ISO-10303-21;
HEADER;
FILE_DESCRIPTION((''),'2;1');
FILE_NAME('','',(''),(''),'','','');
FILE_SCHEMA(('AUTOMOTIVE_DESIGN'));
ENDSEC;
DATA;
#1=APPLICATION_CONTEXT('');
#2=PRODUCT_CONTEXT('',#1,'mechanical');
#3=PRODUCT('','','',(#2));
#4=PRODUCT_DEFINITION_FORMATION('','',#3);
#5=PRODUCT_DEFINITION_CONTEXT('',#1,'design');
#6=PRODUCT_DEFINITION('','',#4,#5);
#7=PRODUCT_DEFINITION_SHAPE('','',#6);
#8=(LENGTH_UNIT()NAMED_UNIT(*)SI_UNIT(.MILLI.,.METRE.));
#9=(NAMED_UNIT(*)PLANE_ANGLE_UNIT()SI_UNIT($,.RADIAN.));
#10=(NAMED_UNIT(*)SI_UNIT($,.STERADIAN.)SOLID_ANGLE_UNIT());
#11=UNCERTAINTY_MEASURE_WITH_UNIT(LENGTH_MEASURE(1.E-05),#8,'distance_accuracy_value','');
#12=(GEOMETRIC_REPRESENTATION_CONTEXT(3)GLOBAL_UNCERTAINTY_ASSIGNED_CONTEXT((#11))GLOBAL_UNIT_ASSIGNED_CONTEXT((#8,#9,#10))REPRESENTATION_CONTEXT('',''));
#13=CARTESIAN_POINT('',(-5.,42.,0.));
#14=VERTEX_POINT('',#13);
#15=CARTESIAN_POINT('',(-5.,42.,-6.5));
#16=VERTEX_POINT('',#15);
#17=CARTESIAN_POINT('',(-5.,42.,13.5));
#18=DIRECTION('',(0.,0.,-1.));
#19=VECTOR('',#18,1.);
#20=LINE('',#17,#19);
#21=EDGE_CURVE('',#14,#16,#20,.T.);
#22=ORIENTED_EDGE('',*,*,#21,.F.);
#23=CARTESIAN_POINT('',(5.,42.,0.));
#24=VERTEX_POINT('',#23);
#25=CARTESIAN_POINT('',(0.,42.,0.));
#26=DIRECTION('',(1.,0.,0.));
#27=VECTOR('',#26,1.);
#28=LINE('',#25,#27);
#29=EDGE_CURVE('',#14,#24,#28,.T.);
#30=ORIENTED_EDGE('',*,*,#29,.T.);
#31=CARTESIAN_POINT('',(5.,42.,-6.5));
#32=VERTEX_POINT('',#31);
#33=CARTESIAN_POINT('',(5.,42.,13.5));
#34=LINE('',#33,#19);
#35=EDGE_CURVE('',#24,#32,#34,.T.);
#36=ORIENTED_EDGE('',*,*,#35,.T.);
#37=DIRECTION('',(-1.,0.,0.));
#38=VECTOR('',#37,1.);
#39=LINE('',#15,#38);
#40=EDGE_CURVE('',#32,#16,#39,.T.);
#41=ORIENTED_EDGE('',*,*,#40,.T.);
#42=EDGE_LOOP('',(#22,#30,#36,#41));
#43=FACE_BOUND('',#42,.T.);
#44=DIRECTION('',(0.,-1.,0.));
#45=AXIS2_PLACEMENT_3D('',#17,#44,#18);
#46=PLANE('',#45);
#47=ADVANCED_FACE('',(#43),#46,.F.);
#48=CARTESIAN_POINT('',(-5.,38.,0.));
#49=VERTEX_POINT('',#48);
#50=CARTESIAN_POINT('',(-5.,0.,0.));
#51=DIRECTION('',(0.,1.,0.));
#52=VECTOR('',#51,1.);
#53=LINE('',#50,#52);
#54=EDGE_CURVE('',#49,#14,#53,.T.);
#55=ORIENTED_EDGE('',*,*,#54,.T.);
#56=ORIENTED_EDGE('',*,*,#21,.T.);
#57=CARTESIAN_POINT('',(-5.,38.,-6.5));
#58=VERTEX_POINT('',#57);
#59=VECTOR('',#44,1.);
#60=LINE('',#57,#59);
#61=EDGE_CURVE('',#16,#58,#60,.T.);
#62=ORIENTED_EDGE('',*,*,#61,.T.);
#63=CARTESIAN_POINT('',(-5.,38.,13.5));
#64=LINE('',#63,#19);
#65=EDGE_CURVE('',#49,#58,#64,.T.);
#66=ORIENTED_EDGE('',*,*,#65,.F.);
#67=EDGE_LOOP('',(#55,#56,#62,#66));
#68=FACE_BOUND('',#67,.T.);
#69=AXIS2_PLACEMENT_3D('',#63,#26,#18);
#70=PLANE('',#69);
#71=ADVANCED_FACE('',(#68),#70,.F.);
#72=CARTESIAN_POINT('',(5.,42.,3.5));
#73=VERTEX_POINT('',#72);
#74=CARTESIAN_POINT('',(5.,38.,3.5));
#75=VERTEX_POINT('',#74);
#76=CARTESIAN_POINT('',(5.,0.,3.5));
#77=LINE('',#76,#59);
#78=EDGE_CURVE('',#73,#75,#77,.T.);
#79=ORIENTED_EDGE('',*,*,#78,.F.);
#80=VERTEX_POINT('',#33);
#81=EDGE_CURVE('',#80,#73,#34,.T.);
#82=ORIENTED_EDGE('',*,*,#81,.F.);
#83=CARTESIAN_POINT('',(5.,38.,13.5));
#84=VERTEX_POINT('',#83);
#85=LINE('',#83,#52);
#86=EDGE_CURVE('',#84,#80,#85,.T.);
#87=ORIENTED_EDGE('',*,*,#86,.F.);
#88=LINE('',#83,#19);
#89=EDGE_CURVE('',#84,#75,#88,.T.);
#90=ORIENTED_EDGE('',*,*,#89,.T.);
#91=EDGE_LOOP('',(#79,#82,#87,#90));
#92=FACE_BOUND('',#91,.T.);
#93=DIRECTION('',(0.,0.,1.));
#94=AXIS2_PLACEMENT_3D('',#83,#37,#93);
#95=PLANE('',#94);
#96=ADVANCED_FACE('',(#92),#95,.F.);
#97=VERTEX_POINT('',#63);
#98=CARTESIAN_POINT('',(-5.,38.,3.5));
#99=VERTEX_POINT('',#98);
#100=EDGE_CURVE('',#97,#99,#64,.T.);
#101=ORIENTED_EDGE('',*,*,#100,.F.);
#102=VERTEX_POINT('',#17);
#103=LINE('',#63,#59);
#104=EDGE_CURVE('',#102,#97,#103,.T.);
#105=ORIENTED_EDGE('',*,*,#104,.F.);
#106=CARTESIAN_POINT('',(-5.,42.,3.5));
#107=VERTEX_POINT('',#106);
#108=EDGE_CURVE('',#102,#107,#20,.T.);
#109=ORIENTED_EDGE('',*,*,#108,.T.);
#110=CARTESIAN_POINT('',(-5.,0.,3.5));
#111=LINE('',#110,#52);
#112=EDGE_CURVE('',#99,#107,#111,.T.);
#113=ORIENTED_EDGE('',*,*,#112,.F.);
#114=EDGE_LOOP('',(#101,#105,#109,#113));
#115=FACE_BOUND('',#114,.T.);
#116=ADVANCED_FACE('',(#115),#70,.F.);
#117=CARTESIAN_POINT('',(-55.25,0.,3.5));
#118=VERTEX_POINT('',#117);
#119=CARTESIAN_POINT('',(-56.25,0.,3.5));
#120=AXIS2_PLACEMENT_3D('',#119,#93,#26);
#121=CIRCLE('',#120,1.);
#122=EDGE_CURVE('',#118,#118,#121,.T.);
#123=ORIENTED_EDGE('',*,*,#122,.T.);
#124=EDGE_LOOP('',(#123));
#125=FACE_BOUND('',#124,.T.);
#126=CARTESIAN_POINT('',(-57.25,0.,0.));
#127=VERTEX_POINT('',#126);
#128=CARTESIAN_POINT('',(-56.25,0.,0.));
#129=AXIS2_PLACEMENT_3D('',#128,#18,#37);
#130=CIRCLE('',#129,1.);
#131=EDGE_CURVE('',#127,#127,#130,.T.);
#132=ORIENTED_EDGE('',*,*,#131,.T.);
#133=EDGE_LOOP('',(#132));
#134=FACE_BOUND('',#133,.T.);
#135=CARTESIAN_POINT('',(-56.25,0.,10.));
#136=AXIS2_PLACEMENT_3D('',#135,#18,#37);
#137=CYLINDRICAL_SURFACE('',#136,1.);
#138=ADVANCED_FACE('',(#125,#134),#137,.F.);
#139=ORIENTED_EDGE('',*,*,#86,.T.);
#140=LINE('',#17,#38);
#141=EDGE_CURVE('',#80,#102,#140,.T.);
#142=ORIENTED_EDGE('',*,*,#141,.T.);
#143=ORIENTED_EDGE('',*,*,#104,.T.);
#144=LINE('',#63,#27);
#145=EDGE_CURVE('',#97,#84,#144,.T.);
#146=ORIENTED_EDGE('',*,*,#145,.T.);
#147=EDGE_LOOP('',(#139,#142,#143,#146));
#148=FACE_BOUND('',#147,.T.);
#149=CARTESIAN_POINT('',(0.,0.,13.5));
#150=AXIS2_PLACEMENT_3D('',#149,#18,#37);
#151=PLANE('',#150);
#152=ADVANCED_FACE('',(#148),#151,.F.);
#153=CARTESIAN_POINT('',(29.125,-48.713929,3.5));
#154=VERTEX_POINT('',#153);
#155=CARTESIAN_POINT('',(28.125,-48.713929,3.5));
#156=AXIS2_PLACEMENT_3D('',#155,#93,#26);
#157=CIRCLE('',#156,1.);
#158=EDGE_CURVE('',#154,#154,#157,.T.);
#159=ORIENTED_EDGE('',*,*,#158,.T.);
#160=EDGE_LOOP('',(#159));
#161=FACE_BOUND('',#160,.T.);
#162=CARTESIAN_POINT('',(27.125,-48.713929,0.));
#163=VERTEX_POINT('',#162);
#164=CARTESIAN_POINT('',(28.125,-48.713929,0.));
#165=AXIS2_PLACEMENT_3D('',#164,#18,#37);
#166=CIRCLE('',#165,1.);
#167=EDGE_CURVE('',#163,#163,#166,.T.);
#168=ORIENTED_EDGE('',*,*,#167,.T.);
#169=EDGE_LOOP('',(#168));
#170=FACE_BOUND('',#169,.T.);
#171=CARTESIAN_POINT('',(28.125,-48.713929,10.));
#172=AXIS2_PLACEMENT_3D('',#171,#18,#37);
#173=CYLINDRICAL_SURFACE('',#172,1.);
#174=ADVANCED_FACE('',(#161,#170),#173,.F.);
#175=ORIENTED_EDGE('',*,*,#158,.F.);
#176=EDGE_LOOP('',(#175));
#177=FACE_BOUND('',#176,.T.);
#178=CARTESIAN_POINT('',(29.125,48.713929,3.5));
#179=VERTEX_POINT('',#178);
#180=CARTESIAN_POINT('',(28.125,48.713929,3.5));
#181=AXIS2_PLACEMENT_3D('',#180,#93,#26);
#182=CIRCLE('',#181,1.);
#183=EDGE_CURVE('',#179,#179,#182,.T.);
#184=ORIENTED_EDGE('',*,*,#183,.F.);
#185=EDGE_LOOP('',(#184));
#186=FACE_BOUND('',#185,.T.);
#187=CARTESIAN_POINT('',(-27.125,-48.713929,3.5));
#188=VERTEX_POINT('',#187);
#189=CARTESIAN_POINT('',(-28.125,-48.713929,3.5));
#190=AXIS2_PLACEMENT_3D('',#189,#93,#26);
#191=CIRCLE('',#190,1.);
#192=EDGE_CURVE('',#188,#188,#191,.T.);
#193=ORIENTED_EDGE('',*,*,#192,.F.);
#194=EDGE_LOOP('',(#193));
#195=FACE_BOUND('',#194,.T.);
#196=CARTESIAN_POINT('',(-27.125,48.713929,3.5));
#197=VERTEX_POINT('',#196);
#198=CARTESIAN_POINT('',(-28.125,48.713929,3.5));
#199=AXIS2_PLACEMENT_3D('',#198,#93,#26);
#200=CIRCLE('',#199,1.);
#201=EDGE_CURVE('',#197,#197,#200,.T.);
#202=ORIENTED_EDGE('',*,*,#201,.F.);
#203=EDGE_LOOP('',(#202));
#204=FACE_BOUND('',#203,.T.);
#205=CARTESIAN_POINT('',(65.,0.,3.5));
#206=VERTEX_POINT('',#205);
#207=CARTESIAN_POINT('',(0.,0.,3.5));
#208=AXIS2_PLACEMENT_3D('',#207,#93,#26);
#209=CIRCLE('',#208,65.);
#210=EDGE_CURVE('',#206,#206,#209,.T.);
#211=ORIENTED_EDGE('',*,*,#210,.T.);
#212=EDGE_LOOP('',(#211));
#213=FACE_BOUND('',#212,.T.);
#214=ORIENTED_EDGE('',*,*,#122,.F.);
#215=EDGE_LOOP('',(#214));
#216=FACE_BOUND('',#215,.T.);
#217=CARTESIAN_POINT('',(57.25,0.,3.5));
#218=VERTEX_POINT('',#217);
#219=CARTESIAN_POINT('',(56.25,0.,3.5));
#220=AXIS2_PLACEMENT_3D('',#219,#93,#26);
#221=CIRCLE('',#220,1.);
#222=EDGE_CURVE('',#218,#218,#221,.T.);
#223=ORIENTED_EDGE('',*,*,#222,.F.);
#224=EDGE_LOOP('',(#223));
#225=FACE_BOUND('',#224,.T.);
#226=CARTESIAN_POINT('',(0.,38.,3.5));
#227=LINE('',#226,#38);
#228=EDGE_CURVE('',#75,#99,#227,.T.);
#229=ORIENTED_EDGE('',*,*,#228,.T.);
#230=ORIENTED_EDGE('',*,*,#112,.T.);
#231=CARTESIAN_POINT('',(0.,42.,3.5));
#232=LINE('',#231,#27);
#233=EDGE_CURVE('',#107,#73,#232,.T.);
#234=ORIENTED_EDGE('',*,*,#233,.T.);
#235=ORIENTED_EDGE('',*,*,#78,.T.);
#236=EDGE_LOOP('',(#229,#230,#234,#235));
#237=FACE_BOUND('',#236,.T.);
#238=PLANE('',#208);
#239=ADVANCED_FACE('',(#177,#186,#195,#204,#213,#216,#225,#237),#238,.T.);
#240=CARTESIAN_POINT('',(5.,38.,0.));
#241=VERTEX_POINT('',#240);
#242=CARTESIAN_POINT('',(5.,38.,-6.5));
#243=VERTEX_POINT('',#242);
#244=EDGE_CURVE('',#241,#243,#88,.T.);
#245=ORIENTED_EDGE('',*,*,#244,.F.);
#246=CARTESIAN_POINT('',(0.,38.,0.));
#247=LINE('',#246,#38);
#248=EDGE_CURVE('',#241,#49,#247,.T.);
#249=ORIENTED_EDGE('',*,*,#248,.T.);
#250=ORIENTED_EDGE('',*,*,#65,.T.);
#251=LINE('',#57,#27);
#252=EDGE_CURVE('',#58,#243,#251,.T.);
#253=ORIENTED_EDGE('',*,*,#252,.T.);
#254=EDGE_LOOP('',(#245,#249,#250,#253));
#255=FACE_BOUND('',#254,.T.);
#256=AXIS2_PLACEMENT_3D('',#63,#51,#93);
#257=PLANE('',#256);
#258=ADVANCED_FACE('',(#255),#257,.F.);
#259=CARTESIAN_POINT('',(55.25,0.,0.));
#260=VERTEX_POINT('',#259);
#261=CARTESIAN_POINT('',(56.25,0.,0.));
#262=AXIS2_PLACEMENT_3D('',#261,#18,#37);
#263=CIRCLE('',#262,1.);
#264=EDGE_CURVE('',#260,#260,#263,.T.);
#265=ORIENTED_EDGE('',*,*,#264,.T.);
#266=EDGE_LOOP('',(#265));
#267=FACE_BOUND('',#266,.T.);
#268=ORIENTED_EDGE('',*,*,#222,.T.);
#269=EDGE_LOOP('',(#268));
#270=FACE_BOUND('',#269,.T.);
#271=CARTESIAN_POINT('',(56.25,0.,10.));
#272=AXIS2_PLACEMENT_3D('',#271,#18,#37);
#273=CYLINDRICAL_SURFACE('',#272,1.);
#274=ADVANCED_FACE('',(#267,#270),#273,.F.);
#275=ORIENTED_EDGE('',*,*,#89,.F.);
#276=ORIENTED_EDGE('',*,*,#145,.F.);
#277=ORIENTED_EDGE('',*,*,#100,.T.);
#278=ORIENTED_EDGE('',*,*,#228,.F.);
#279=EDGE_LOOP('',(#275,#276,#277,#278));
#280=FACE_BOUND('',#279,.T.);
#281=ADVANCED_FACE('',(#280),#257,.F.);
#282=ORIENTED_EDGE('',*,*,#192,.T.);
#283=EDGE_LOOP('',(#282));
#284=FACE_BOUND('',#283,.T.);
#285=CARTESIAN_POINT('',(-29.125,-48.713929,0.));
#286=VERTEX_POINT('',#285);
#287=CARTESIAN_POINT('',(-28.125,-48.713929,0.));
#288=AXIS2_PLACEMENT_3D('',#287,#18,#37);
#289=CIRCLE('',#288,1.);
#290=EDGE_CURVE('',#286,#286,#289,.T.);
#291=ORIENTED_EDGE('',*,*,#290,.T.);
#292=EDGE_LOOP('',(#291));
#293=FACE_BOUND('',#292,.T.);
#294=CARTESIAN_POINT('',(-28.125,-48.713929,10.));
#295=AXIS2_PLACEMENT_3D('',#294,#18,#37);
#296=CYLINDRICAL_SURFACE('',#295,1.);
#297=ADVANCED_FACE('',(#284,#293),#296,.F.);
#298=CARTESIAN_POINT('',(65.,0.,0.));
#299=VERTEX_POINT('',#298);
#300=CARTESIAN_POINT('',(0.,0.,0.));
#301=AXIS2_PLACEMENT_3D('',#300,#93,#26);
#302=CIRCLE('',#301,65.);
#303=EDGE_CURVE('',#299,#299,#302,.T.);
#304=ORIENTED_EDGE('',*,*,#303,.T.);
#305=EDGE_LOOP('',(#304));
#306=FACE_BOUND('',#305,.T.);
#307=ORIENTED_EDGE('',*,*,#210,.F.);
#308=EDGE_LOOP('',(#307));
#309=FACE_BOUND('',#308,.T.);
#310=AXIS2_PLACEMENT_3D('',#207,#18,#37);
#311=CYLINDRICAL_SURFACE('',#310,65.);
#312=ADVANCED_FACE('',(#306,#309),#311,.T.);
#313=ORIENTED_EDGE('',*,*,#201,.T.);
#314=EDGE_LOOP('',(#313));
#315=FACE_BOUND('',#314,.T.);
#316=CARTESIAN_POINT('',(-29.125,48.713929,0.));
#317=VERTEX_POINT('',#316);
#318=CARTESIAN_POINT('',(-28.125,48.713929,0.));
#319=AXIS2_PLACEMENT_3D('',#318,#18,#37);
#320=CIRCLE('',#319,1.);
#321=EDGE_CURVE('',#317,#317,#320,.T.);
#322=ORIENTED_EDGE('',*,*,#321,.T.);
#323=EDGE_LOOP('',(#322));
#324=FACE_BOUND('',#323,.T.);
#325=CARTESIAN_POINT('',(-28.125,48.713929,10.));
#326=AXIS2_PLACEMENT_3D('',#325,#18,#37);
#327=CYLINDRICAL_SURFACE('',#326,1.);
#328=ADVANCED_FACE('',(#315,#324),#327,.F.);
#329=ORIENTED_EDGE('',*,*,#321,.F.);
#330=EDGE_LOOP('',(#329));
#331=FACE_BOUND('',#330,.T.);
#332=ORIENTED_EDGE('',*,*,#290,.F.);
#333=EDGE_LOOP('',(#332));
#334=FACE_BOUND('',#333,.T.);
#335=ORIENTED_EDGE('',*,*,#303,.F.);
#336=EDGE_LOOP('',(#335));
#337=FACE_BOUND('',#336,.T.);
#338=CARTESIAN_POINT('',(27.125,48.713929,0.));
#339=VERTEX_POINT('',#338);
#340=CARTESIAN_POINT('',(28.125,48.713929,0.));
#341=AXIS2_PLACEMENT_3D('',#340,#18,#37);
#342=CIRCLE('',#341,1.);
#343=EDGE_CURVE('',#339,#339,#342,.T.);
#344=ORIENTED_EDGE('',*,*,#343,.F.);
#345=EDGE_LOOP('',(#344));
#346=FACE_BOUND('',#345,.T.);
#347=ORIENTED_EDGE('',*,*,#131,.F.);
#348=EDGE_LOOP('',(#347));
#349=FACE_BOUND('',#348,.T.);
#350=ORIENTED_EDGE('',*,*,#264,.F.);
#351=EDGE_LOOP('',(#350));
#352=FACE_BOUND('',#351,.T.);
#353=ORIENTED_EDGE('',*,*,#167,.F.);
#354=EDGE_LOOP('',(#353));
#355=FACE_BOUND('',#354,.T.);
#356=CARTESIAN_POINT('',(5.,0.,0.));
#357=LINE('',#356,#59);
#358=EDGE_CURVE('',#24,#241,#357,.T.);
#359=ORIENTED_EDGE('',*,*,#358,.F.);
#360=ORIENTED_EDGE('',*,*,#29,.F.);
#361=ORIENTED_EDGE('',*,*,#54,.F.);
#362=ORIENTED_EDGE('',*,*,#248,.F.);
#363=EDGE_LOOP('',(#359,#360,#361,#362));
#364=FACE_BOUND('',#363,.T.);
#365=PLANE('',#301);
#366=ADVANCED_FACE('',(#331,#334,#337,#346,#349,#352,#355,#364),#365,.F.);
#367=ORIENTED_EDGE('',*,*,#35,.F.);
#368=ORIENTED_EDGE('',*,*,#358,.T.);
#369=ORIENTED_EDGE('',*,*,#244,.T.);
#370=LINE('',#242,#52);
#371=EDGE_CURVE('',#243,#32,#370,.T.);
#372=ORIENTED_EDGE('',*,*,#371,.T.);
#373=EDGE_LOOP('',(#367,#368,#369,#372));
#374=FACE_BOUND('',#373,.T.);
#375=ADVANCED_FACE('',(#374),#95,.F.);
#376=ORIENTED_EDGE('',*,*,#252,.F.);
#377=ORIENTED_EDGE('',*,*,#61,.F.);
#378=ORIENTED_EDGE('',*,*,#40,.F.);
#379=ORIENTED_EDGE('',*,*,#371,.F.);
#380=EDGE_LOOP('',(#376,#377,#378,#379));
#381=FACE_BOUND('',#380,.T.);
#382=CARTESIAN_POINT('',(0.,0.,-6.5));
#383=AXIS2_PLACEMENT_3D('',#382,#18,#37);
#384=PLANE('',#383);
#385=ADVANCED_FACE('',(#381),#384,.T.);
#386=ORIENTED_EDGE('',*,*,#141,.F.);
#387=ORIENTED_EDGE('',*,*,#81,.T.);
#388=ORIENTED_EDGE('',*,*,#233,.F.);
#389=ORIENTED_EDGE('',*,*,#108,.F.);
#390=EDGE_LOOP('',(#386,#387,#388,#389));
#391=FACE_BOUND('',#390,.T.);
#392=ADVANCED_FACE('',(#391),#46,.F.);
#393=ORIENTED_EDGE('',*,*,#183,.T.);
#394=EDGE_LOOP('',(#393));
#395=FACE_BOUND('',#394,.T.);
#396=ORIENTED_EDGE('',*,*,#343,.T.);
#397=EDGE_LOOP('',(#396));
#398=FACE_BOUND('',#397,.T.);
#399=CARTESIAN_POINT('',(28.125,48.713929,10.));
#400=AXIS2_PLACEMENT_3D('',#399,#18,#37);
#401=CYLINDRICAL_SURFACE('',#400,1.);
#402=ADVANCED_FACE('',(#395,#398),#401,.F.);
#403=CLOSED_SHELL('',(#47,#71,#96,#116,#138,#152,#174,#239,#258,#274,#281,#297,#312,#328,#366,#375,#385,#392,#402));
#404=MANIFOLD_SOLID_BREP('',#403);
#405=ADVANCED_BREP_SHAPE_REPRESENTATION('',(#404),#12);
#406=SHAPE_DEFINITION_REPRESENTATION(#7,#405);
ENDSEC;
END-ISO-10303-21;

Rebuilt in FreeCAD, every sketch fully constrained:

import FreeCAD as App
import Part
import Sketcher

doc = App.newDocument("Part")
params = doc.addObject("Spreadsheet::Sheet", "Params")
for row, (alias, value) in enumerate([
    ("sketch1_diameter", "130 mm"),
    ("pad1_length", "3.5 mm"),
    ("sketch2_width", "10 mm"),
    ("sketch2_height", "4 mm"),
    ("pad2_length", "20 mm"),
    ("sketch3_diameter", "2 mm"),
    ("pocket1_length", "10 mm"),
], start=1):
    params.set(f"A{row}", alias)
    params.set(f"B{row}", "=" + value)
    params.setAlias(f"B{row}", alias)

body = doc.addObject("PartDesign::Body", "Body")

sketch1 = body.newObject("Sketcher::SketchObject", "Sketch")
sketch1.AttachmentSupport = (doc.getObject("XY_Plane"), [""])
sketch1.MapMode = "FlatFace"
sketch1.addGeometry(Part.Circle(App.Vector(0, 0, 0), App.Vector(0, 0, 1), 65), False)
sketch1.addConstraint(Sketcher.Constraint("Coincident", 0, 3, -1, 1))
sketch1.addConstraint(Sketcher.Constraint("Diameter", 0, 130.0))
sketch1.setExpression("Constraints[1]", "Params.sketch1_diameter")
pad1 = body.newObject("PartDesign::Pad", "Pad")
pad1.Profile = sketch1
pad1.setExpression("Length", "Params.pad1_length")

sketch2 = body.newObject("Sketcher::SketchObject", "Sketch001")
sketch2.AttachmentSupport = (doc.getObject("XY_Plane"), [""])
sketch2.MapMode = "FlatFace"
sketch2.AttachmentOffset = App.Placement(App.Vector(0, 0, 3.5), App.Rotation())
sketch2.addGeometry(Part.LineSegment(App.Vector(-5, 42, 0), App.Vector(-5, 38, 0)), False)
sketch2.addGeometry(Part.LineSegment(App.Vector(-5, 38, 0), App.Vector(5, 38, 0)), False)
sketch2.addGeometry(Part.LineSegment(App.Vector(5, 38, 0), App.Vector(5, 42, 0)), False)
sketch2.addGeometry(Part.LineSegment(App.Vector(5, 42, 0), App.Vector(-5, 42, 0)), False)
sketch2.addConstraint(Sketcher.Constraint("Coincident", 0, 2, 1, 1))
sketch2.addConstraint(Sketcher.Constraint("Coincident", 1, 2, 2, 1))
sketch2.addConstraint(Sketcher.Constraint("Coincident", 2, 2, 3, 1))
sketch2.addConstraint(Sketcher.Constraint("Coincident", 3, 2, 0, 1))
sketch2.addConstraint(Sketcher.Constraint("Vertical", 0))
sketch2.addConstraint(Sketcher.Constraint("Horizontal", 1))
sketch2.addConstraint(Sketcher.Constraint("Vertical", 2))
sketch2.addConstraint(Sketcher.Constraint("Horizontal", 3))
sketch2.addConstraint(Sketcher.Constraint("DistanceX", 1, 1, 1, 2, 10.0))
sketch2.addConstraint(Sketcher.Constraint("DistanceY", 0, 2, 0, 1, 4.0))
sketch2.addConstraint(Sketcher.Constraint("DistanceX", 0, 2, -1, 1, 5.0))
sketch2.addConstraint(Sketcher.Constraint("DistanceY", -1, 1, 0, 2, 38.0))
sketch2.setExpression("Constraints[8]", "Params.sketch2_width")
sketch2.setExpression("Constraints[9]", "Params.sketch2_height")
pad2 = body.newObject("PartDesign::Pad", "Pad001")
pad2.Profile = sketch2
pad2.setExpression("Length", "Params.pad2_length")
pad2.Midplane = True

sketch3 = body.newObject("Sketcher::SketchObject", "Sketch002")
sketch3.AttachmentSupport = (doc.getObject("XY_Plane"), [""])
sketch3.MapMode = "FlatFace"
sketch3.addGeometry(Part.Circle(App.Vector(-56.2, 0, 0), App.Vector(0, 0, 1), 1), False)
sketch3.addGeometry(Part.Circle(App.Vector(-28.1, -48.7, 0), App.Vector(0, 0, 1), 1), False)
sketch3.addGeometry(Part.Circle(App.Vector(28.1, -48.7, 0), App.Vector(0, 0, 1), 1), False)
sketch3.addGeometry(Part.Circle(App.Vector(56.2, 0, 0), App.Vector(0, 0, 1), 1), False)
sketch3.addGeometry(Part.Circle(App.Vector(28.1, 48.7, 0), App.Vector(0, 0, 1), 1), False)
sketch3.addGeometry(Part.Circle(App.Vector(-28.1, 48.7, 0), App.Vector(0, 0, 1), 1), False)
sketch3.addConstraint(Sketcher.Constraint("Equal", 0, 1))
sketch3.addConstraint(Sketcher.Constraint("Equal", 1, 2))
sketch3.addConstraint(Sketcher.Constraint("Equal", 2, 3))
sketch3.addConstraint(Sketcher.Constraint("Equal", 3, 4))
sketch3.addConstraint(Sketcher.Constraint("Equal", 4, 5))
sketch3.addConstraint(Sketcher.Constraint("Symmetric", 0, 3, 3, 3, -1, 1))
sketch3.addConstraint(Sketcher.Constraint("Symmetric", 1, 3, 4, 3, -1, 1))
sketch3.addConstraint(Sketcher.Constraint("Symmetric", 2, 3, 5, 3, -1, 1))
sketch3.addConstraint(Sketcher.Constraint("Symmetric", 1, 3, 2, 3, -2))
sketch3.addConstraint(Sketcher.Constraint("PointOnObject", 0, 3, -1))
sketch3.addConstraint(Sketcher.Constraint("Diameter", 0, 2.0))
sketch3.addConstraint(Sketcher.Constraint("DistanceX", 0, 3, 3, 3, 112.5))
sketch3.addConstraint(Sketcher.Constraint("DistanceX", 1, 3, 2, 3, 56.25))
sketch3.addConstraint(Sketcher.Constraint("DistanceY", 1, 3, -1, 1, 48.713929))
sketch3.setExpression("Constraints[10]", "Params.sketch3_diameter")
pocket1 = body.newObject("PartDesign::Pocket", "Pocket")
pocket1.Profile = sketch3
pocket1.setExpression("Length", "Params.pocket1_length")
pocket1.Reversed = True

doc.recompute()
